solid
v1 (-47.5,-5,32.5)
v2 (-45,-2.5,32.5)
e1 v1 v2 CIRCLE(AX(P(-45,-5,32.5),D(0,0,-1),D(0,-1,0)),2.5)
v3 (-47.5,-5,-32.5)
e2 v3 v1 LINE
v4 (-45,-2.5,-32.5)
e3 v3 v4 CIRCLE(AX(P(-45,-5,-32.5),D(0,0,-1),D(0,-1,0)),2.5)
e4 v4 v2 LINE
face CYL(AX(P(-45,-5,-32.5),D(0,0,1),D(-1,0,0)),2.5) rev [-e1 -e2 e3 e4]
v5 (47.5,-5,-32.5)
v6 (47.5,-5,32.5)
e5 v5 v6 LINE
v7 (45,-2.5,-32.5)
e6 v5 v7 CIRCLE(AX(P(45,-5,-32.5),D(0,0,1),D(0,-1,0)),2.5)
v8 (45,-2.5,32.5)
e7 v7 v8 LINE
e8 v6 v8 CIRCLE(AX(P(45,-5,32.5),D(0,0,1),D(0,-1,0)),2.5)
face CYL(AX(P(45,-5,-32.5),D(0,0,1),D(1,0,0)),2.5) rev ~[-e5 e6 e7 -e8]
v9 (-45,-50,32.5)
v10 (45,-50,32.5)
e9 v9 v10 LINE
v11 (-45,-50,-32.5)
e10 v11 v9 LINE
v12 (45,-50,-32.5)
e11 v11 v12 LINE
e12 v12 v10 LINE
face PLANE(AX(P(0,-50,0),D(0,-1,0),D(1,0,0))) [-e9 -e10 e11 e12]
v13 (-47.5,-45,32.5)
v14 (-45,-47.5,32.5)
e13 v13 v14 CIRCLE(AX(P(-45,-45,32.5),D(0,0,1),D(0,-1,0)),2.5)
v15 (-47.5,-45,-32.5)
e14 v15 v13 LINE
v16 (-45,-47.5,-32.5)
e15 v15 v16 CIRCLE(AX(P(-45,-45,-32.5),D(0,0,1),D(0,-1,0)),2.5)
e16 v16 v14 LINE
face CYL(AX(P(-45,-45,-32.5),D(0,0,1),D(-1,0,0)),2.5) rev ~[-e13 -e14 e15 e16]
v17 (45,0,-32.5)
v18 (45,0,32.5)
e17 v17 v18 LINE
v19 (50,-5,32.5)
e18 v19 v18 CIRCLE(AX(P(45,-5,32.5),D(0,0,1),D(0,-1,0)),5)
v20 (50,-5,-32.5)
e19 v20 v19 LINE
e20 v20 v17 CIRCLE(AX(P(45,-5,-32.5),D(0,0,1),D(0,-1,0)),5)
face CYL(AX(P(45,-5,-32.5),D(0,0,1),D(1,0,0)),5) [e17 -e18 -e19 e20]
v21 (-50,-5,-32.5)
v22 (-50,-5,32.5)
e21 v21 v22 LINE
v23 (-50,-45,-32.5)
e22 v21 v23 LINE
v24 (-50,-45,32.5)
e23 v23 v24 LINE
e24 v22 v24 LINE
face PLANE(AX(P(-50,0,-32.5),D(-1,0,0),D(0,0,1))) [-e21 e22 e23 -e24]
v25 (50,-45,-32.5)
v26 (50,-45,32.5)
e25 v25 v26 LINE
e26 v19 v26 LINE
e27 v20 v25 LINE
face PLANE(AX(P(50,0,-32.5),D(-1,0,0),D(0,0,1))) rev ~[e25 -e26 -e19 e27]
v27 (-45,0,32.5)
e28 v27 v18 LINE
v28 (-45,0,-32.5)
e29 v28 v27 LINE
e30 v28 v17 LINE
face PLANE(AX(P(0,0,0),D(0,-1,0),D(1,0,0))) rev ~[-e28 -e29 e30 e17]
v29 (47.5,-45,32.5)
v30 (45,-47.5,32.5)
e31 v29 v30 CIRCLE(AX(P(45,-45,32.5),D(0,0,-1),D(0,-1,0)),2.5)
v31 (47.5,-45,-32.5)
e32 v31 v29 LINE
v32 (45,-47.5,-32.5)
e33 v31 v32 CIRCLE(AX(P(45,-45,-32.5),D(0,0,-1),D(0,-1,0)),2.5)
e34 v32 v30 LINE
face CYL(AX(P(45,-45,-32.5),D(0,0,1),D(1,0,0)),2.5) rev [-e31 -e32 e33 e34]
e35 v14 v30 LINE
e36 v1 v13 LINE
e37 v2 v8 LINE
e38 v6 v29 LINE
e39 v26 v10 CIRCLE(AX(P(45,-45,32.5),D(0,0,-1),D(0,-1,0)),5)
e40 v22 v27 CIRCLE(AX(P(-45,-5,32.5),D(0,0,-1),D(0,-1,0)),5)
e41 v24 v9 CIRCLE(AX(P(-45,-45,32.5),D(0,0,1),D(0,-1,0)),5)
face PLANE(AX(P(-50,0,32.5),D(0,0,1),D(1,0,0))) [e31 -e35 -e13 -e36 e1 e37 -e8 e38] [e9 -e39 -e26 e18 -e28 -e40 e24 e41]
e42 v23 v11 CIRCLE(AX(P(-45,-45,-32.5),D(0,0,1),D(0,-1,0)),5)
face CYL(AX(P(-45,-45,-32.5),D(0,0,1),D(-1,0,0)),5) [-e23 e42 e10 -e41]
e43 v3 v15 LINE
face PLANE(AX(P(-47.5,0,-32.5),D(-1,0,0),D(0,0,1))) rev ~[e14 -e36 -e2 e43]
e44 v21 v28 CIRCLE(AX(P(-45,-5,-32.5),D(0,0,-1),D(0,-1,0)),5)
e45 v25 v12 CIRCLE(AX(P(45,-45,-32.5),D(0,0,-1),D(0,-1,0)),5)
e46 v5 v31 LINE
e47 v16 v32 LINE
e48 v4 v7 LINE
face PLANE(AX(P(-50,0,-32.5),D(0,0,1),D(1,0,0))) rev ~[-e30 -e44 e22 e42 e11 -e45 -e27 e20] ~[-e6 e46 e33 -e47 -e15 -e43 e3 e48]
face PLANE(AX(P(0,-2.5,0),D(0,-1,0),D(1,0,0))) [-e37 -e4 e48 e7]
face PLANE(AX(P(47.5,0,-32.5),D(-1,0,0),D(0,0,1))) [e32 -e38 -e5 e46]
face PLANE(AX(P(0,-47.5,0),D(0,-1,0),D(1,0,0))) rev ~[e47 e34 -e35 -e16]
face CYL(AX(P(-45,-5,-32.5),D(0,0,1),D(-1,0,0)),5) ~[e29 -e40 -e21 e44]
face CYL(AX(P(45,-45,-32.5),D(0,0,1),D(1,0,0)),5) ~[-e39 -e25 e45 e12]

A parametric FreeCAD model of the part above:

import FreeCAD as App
import Part
import Sketcher

V = App.Vector


def edges_at(feature, points):
    """Names of the edges that pass closest to the given points."""
    edges = feature.Shape.Edges
    near = lambda p: min(range(len(edges)), key=lambda i: edges[i].distToShape(Part.Vertex(*p))[0])
    return sorted({f"Edge{near(p) + 1}" for p in points})


def faces_at(feature, points):
    """Names of the faces that lie closest to the given points."""
    faces = feature.Shape.Faces
    near = lambda p: min(range(len(faces)), key=lambda i: faces[i].distToShape(Part.Vertex(*p))[0])
    return sorted({f"Face{near(p) + 1}" for p in points})

doc = App.newDocument("Part")
body = doc.addObject("PartDesign::Body", "Body")

sketch1 = body.newObject("Sketcher::SketchObject", "Sketch")
sketch1.AttachmentSupport = (doc.getObject("XZ_Plane"), [""])
sketch1.MapMode = "FlatFace"
sketch1.addGeometry([
    Part.LineSegment(V(-50, 32.5, 0), V(-50, -32.5, 0)),
    Part.LineSegment(V(-50, -32.5, 0), V(50, -32.5, 0)),
    Part.LineSegment(V(50, -32.5, 0), V(50, 32.5, 0)),
    Part.LineSegment(V(50, 32.5, 0), V(-50, 32.5, 0)),
], False)
sketch1.addConstraint([
    Sketcher.Constraint("Coincident", 0, 2, 1, 1),
    Sketcher.Constraint("Coincident", 1, 2, 2, 1),
    Sketcher.Constraint("Coincident", 2, 2, 3, 1),
    Sketcher.Constraint("Coincident", 3, 2, 0, 1),
    Sketcher.Constraint("Vertical", 0),
    Sketcher.Constraint("Horizontal", 1),
    Sketcher.Constraint("Vertical", 2),
    Sketcher.Constraint("Horizontal", 3),
    Sketcher.Constraint("Symmetric", 0, 2, 2, 2, -1, 1),
    Sketcher.Constraint("DistanceX", 1, 1, 1, 2, 100.0),
    Sketcher.Constraint("DistanceY", 0, 2, 0, 1, 65.0),
])
pad1 = body.newObject("PartDesign::Pad", "Pad")
pad1.Profile = sketch1
pad1.Length = 50
doc.recompute()

fillet = body.newObject("PartDesign::Fillet", "Fillet")
fillet.Base = (pad1, edges_at(pad1, [
    (-50, -50, 0),
    (50, -50, 0),
    (-50, 0, 0),
    (50, 0, 0),
]))
fillet.Radius = 5
doc.recompute()

thickness = body.newObject("PartDesign::Thickness", "Thickness")
thickness.Base = (fillet, faces_at(fillet, [(0, -25, 32.5), (0, -25, -32.5)]))
thickness.Value = 2.5
thickness.Reversed = True
thickness.Join = "Arc"

doc.recompute()
